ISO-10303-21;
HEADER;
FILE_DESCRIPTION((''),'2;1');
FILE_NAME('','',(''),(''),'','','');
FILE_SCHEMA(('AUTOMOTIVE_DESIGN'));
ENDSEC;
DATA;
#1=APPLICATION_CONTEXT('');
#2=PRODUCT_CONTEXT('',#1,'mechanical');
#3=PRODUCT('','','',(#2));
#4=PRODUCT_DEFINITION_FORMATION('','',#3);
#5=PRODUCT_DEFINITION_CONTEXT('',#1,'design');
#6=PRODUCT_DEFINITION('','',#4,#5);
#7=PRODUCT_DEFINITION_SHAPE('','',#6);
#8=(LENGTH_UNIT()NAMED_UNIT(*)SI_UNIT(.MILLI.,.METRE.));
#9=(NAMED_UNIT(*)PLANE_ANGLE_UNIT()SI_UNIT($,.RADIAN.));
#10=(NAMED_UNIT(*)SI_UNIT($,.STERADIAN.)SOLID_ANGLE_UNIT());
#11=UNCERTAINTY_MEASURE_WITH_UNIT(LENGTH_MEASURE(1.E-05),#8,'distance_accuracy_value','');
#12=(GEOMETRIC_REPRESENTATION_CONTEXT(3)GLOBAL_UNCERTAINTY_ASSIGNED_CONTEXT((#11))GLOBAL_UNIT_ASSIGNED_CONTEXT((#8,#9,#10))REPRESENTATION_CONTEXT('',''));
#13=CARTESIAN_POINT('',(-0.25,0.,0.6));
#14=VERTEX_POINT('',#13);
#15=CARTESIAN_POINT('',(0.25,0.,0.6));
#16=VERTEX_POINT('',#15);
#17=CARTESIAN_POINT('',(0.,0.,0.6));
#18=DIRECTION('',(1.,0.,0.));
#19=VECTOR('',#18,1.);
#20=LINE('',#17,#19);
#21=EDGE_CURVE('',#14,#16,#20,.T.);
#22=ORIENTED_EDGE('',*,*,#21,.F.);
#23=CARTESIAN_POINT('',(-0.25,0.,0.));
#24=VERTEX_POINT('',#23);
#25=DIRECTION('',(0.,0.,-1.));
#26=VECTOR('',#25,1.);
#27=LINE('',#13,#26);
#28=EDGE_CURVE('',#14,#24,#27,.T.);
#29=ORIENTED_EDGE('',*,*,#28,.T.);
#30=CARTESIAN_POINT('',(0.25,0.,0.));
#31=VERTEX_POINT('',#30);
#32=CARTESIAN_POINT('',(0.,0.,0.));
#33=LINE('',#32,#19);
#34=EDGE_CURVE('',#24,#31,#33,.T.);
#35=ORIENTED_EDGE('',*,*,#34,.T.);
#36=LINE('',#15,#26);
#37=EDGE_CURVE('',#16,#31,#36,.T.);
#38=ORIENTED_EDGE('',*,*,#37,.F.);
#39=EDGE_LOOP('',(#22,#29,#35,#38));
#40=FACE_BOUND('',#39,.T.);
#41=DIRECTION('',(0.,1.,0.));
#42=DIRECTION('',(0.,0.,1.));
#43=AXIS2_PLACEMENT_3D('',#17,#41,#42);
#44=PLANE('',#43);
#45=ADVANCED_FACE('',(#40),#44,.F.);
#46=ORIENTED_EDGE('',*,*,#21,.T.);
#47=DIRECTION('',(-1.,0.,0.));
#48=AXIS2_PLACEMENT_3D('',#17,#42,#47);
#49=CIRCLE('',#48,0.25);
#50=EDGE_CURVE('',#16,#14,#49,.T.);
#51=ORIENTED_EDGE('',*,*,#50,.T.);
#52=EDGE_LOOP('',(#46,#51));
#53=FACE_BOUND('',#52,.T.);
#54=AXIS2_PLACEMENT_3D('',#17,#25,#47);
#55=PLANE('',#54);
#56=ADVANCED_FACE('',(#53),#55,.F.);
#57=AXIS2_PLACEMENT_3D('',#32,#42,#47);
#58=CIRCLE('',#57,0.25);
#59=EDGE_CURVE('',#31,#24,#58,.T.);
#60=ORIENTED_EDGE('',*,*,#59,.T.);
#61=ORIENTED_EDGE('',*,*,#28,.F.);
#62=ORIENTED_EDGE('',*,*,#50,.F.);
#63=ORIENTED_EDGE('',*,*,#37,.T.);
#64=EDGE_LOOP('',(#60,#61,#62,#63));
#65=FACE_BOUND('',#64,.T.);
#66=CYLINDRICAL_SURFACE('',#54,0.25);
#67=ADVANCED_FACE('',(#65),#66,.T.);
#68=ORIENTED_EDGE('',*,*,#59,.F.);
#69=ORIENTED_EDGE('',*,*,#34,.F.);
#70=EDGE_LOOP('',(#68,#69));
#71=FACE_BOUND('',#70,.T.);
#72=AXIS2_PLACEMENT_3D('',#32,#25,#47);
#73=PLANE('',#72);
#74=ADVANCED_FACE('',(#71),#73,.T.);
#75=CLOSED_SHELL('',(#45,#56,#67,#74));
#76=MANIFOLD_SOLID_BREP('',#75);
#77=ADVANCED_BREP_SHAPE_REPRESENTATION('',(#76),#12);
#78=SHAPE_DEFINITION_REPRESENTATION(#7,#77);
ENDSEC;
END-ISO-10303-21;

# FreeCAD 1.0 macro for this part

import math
import FreeCAD as App
import Part
import Sketcher
from FreeCAD import Vector

doc = App.newDocument("Part")
body = doc.addObject("PartDesign::Body", "Body")

# Sketch on XY plane
sketch1 = body.newObject("Sketcher::SketchObject", "Sketch")
sketch1.AttachmentSupport = (doc.getObject("XY_Plane"), [""])
sketch1.MapMode = "FlatFace"
sketch1.addGeometry(Part.ArcOfCircle(Part.Circle(Vector(0, 0, 0), Vector(0, 0, 1), 0.25), math.radians(0), math.radians(180)), False)
sketch1.addGeometry(Part.LineSegment(Vector(-0.25, 0, 0), Vector(0.25, 0, 0)), False)
sketch1.addConstraint(Sketcher.Constraint("Coincident", 0, 1, 1, 2))
sketch1.addConstraint(Sketcher.Constraint("Coincident", 1, 1, 0, 2))
sketch1.addConstraint(Sketcher.Constraint("Horizontal", 1))
sketch1.addConstraint(Sketcher.Constraint("Coincident", 0, 3, -1, 1))
sketch1.addConstraint(Sketcher.Constraint("PointOnObject", 0, 1, -1))
sketch1.addConstraint(Sketcher.Constraint("Radius", 0, 0.25))
pad1 = body.newObject("PartDesign::Pad", "Pad")
pad1.Profile = sketch1
pad1.Length = 0.6

doc.recompute()
